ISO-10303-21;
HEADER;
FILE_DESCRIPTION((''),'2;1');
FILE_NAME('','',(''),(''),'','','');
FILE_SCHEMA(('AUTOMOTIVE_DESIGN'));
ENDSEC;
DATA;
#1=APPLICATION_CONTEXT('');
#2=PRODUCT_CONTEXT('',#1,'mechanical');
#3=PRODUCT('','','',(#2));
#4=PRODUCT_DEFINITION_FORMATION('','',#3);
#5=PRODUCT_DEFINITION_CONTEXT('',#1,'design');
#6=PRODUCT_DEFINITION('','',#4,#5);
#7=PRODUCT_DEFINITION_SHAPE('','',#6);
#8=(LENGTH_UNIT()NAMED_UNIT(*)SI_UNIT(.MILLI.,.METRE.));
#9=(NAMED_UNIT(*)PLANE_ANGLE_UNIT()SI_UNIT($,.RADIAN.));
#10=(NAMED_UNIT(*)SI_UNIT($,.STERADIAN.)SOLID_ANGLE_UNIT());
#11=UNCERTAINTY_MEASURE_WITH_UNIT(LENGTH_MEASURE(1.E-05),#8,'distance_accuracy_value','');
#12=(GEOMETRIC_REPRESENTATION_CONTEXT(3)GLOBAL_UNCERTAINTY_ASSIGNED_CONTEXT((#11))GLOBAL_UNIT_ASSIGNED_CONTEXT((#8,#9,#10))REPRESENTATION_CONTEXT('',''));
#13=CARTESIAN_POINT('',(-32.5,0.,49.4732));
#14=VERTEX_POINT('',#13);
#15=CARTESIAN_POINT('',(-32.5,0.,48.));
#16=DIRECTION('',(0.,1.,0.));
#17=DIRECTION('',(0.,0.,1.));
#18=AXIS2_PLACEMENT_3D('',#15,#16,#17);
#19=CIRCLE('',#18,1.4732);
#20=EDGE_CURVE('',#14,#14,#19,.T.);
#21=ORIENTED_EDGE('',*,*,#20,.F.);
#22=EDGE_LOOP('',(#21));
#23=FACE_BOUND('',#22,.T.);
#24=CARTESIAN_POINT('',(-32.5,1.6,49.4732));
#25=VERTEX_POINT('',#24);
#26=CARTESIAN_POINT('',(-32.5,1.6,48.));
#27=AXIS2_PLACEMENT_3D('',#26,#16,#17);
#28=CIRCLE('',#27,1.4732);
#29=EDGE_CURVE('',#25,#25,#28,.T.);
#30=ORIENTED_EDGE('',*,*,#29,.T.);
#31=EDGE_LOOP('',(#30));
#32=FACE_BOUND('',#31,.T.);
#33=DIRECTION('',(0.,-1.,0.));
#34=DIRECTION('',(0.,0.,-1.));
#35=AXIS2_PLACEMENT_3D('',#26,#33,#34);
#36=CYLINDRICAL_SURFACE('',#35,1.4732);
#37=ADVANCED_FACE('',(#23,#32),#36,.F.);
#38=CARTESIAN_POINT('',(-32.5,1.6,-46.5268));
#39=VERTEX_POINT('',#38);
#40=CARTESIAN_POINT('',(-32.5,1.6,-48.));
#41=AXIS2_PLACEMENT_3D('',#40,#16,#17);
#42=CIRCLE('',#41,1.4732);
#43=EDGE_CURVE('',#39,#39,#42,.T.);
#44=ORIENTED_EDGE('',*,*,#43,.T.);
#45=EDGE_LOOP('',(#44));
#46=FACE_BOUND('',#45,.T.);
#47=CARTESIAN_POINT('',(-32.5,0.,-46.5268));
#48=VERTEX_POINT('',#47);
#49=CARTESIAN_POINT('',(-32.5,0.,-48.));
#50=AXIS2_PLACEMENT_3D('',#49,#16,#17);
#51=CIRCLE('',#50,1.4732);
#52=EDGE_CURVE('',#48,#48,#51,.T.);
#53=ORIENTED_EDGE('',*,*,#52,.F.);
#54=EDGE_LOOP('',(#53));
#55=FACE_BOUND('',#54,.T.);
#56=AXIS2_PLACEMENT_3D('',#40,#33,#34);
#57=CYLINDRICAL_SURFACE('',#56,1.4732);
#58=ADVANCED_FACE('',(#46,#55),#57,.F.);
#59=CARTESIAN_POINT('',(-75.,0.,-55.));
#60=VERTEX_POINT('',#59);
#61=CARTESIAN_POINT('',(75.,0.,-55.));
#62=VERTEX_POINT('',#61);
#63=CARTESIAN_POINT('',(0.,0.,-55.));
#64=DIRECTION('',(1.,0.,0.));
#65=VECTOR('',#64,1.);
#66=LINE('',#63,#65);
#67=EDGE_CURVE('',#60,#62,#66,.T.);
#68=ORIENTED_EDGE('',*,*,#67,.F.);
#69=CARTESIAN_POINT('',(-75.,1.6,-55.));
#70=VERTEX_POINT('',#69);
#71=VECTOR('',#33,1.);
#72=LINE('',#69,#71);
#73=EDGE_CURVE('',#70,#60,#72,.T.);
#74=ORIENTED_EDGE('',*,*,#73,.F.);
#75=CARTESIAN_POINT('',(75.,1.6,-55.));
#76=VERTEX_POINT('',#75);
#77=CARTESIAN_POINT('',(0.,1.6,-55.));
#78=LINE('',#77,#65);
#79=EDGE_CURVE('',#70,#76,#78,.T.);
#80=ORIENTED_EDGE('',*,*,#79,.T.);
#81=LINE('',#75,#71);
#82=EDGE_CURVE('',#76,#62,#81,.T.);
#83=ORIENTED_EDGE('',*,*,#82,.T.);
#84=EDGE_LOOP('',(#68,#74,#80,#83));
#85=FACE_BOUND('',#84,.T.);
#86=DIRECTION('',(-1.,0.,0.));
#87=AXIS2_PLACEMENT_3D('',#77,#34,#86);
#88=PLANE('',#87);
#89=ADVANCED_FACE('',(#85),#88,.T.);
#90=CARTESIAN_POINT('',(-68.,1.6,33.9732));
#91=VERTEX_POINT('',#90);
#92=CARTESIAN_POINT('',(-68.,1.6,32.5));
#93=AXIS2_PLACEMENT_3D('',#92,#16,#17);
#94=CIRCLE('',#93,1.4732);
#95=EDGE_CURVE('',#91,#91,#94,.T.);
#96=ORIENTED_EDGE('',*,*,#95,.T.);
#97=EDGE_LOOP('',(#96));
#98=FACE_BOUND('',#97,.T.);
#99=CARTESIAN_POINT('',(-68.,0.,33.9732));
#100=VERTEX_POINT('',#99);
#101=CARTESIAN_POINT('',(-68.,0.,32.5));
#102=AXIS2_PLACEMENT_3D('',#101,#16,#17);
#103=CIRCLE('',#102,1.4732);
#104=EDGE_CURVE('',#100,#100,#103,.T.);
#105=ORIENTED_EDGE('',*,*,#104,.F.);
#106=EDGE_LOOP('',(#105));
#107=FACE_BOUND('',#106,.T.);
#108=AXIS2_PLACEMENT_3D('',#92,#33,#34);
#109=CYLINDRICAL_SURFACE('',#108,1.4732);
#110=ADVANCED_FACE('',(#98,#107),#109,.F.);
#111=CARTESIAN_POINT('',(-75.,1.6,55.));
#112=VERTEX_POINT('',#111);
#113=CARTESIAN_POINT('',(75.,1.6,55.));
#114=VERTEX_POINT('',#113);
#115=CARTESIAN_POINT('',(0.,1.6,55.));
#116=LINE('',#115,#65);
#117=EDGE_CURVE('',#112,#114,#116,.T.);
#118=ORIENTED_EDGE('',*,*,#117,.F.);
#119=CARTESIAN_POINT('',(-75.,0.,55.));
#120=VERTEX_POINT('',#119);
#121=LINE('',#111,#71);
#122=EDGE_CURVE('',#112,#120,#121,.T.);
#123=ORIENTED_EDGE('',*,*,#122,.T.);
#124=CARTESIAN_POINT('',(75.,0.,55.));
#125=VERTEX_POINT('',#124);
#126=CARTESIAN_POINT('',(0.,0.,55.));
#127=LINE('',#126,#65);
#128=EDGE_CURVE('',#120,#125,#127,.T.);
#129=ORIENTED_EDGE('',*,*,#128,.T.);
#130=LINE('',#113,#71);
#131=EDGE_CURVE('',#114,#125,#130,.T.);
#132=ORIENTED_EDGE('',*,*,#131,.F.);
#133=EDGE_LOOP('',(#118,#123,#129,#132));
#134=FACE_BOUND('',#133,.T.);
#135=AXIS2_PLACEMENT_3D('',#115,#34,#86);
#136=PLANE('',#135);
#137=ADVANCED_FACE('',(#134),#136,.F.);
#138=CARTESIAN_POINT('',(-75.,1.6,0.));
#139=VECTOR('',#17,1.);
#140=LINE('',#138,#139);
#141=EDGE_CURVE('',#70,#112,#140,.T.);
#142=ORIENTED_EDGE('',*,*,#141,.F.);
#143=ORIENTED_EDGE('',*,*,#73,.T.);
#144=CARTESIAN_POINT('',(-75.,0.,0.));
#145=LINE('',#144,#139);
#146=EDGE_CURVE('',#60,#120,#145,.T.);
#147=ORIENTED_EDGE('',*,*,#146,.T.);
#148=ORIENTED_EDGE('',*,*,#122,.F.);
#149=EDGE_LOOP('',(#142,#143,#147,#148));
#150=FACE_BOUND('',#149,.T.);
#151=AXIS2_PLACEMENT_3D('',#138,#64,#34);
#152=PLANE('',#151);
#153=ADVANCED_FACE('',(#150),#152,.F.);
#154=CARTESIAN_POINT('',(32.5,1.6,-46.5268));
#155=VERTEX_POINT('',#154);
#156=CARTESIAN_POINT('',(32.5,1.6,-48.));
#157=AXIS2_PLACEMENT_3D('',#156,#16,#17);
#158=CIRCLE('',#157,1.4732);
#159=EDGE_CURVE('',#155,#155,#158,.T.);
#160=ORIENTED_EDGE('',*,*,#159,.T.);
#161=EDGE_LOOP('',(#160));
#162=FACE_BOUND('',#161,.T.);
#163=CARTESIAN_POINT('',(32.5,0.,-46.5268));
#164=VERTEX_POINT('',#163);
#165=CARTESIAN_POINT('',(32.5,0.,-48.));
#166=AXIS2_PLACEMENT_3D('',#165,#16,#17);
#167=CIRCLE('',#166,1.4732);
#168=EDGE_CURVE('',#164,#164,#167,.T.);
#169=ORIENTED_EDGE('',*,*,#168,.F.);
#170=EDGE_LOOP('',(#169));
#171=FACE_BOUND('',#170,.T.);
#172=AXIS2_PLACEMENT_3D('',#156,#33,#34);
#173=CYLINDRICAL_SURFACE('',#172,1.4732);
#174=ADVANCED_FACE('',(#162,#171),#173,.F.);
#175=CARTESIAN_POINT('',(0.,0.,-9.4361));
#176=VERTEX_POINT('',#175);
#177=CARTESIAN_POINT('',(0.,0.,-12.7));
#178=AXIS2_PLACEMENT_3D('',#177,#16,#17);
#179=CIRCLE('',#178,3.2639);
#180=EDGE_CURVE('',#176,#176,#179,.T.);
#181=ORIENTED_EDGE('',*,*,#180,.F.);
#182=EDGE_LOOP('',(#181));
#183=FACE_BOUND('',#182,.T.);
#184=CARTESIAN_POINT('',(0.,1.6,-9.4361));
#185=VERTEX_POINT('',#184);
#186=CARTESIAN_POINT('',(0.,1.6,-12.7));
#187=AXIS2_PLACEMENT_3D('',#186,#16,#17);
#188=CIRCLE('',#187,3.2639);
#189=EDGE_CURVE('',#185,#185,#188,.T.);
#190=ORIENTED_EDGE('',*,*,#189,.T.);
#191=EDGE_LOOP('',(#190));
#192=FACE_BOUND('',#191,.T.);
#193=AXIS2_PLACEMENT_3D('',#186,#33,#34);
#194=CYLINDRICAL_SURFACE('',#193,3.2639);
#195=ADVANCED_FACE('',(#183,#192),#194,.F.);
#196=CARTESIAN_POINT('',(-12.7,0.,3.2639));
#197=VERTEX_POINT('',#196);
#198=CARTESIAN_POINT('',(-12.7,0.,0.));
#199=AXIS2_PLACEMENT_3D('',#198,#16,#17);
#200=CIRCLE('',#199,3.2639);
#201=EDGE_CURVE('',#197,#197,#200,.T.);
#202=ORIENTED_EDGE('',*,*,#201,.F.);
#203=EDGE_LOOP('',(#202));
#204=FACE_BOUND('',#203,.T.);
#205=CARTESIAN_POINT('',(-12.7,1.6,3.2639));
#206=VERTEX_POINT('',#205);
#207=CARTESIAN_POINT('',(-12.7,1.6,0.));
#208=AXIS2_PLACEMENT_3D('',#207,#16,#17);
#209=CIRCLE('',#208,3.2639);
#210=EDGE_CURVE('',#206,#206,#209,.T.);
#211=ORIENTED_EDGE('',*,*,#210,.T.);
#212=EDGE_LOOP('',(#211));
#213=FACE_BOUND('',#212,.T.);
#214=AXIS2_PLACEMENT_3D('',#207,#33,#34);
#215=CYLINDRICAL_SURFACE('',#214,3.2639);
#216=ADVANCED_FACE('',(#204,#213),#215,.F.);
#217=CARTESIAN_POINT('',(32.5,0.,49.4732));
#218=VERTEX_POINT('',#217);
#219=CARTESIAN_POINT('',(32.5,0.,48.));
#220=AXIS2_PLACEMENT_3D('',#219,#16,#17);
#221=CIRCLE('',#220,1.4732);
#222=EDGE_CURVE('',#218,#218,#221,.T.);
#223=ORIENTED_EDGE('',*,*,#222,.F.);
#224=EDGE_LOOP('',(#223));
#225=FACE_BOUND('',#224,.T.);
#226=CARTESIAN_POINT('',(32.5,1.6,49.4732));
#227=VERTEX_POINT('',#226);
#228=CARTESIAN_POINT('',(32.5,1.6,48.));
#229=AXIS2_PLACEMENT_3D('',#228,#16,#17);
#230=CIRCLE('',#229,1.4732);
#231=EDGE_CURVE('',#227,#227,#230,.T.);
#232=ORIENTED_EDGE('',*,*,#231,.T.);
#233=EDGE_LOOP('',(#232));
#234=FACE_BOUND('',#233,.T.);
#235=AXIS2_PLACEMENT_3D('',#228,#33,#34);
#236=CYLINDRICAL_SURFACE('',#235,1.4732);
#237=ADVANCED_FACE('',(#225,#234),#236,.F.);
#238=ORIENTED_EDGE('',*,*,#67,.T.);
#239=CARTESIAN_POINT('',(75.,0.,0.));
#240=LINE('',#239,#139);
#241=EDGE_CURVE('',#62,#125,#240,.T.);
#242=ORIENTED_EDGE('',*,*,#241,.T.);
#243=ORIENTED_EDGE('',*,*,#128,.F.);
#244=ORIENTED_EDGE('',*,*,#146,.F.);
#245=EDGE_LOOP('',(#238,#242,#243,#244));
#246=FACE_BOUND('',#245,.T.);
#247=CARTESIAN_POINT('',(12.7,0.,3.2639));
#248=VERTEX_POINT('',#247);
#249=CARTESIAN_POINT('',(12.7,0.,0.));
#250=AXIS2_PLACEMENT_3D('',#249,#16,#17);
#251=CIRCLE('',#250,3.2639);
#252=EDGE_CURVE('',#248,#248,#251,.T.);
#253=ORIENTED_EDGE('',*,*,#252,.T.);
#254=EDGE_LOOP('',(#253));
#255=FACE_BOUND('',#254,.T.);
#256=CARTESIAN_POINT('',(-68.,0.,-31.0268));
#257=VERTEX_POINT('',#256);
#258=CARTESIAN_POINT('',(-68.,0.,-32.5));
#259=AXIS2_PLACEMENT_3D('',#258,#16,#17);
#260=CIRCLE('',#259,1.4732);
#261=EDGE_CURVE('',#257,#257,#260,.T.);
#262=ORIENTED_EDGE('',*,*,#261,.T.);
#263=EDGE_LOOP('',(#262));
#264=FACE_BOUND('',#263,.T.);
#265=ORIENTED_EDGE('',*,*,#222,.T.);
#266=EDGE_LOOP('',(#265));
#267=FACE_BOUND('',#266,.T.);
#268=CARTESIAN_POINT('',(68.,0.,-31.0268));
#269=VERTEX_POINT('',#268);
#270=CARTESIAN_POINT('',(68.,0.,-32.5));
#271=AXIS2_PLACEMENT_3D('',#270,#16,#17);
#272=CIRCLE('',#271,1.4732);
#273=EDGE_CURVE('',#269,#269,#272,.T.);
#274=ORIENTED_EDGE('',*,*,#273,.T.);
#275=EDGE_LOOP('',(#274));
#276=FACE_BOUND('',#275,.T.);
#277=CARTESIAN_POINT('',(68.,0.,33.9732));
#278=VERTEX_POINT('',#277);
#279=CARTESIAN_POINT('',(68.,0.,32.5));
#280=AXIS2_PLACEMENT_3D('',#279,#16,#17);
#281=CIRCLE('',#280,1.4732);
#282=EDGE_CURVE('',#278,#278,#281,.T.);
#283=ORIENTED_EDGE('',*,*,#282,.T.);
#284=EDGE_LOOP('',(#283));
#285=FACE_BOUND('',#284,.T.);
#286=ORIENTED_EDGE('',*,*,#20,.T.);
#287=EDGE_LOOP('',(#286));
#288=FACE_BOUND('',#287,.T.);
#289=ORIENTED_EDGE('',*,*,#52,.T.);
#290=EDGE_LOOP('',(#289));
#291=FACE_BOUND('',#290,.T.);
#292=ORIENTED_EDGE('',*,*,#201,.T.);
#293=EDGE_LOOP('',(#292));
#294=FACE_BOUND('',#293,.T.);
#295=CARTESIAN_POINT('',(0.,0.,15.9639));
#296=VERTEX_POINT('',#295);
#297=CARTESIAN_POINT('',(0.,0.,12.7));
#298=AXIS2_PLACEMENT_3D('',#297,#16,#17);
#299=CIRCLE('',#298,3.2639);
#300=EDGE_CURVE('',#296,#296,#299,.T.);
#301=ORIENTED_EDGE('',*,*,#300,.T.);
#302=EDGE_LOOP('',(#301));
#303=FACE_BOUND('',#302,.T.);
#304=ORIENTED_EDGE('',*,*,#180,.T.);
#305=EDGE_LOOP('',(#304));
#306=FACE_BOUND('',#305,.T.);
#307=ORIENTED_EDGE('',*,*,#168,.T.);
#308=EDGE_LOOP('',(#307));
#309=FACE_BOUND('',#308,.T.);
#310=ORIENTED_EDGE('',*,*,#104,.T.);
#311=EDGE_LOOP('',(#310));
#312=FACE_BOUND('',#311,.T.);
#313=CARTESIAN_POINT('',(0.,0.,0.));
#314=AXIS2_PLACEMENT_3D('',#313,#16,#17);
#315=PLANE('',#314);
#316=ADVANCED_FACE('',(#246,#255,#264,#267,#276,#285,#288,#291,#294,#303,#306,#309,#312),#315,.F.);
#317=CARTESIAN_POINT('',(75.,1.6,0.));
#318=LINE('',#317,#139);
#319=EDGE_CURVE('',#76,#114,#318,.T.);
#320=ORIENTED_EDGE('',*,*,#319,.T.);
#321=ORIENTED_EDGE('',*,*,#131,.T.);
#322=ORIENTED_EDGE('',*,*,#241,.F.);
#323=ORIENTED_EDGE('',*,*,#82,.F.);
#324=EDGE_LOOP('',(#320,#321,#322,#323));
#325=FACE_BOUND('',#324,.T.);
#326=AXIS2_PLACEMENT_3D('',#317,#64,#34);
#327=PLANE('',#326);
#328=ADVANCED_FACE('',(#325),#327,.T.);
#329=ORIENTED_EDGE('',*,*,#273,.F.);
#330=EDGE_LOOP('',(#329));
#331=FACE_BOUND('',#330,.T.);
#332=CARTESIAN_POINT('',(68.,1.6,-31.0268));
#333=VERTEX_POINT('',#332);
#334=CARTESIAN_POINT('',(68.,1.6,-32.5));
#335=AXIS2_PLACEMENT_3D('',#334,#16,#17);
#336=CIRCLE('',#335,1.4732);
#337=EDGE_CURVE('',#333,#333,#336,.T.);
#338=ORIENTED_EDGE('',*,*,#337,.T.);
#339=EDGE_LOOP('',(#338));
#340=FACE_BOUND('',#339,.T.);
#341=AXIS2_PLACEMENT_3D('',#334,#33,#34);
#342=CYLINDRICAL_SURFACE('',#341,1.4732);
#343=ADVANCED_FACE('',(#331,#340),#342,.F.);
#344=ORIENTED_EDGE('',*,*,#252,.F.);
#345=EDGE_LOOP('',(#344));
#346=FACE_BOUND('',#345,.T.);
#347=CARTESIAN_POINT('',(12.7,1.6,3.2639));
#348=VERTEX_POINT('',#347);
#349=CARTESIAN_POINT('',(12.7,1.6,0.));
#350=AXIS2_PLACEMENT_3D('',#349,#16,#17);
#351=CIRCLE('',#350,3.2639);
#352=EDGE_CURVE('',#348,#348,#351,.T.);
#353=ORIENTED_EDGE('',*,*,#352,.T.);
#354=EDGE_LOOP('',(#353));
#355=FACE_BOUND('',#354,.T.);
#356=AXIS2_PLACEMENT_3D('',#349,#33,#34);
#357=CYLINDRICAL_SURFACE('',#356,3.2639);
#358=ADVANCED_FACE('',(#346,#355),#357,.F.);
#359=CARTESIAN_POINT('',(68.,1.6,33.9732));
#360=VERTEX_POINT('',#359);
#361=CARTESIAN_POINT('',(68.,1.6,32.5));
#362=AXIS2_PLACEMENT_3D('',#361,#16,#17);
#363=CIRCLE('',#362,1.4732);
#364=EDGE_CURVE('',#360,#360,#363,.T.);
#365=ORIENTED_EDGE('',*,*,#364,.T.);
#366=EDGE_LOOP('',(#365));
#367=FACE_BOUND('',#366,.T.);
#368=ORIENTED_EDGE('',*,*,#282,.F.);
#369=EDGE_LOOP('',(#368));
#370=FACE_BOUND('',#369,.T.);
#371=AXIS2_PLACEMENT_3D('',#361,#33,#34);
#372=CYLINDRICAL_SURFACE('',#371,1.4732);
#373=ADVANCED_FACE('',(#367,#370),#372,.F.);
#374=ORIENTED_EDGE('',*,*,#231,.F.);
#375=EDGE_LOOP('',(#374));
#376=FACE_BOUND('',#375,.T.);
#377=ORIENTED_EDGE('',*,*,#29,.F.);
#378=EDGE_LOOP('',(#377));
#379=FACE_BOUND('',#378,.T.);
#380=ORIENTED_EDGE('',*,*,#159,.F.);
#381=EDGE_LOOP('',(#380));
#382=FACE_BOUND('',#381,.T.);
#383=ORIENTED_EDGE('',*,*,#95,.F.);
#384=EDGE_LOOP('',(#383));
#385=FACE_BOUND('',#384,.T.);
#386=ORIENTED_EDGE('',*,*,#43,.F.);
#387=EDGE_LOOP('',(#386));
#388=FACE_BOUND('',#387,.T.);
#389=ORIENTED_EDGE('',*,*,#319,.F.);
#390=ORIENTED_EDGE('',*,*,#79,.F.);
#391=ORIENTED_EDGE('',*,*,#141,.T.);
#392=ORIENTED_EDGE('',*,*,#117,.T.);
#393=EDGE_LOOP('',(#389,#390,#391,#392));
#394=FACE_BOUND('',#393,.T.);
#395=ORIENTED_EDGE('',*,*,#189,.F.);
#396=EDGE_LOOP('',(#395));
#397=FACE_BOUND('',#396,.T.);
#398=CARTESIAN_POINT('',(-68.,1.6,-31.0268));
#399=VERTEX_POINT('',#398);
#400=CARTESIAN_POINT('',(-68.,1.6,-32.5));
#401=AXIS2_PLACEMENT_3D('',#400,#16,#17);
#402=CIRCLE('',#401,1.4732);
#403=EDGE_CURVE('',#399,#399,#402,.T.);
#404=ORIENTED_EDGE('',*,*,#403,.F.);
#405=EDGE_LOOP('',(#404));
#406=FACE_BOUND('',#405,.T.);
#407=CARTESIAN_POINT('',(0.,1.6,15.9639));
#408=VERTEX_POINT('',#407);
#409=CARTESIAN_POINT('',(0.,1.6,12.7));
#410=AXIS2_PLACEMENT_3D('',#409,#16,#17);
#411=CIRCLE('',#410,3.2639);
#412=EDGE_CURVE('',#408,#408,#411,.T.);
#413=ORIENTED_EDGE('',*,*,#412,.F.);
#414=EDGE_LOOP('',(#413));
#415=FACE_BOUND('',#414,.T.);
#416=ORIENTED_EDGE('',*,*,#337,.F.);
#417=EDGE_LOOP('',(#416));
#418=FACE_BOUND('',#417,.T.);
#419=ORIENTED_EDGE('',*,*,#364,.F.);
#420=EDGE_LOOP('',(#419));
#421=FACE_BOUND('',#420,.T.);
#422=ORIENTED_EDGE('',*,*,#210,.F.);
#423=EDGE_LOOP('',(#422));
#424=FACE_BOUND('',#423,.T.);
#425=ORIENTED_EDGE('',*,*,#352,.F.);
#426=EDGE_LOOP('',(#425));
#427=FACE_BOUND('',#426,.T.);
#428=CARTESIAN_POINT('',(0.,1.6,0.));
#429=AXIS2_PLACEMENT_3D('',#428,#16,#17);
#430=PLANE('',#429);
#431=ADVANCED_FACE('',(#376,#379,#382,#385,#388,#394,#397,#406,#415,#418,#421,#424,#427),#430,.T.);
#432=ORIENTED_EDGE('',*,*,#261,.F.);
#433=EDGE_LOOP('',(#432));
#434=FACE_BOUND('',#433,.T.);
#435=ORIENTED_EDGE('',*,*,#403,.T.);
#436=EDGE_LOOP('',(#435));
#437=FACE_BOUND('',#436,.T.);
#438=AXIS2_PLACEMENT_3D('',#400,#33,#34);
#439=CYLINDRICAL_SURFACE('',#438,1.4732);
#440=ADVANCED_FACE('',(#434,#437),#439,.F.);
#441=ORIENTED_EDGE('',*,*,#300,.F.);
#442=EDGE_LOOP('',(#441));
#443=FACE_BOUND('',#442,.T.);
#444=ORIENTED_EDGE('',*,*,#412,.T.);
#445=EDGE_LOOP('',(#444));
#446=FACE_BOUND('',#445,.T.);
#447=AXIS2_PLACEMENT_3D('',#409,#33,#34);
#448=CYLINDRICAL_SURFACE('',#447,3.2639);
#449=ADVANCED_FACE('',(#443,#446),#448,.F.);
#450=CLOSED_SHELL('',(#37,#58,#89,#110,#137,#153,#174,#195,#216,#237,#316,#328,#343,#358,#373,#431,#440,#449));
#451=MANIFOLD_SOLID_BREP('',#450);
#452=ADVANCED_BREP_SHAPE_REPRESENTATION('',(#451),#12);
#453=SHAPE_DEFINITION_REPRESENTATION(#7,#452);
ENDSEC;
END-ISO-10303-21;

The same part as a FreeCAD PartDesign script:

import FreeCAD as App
import Part
import Sketcher

doc = App.newDocument("Part")
params = doc.addObject("Spreadsheet::Sheet", "Params")
for row, (alias, value) in enumerate([
    ("sketch1_width", "150 mm"),
    ("sketch1_height", "110 mm"),
    ("pad1_length", "1.6 mm"),
], start=1):
    params.set(f"A{row}", alias)
    params.set(f"B{row}", "=" + value)
    params.setAlias(f"B{row}", alias)

body = doc.addObject("PartDesign::Body", "Body")

# Sketch on XZ plane
sketch1 = body.newObject("Sketcher::SketchObject", "Sketch")
sketch1.AttachmentSupport = (doc.getObject("XZ_Plane"), [""])
sketch1.MapMode = "FlatFace"
sketch1.addGeometry(Part.LineSegment(App.Vector(-75, -55, 0), App.Vector(-75, 55, 0)), False)
sketch1.addGeometry(Part.LineSegment(App.Vector(-75, 55, 0), App.Vector(75, 55, 0)), False)
sketch1.addGeometry(Part.LineSegment(App.Vector(75, 55, 0), App.Vector(75, -55, 0)), False)
sketch1.addGeometry(Part.LineSegment(App.Vector(75, -55, 0), App.Vector(-75, -55, 0)), False)
sketch1.addGeometry(Part.Circle(App.Vector(-68, 32.5, 0), App.Vector(0, 0, 1), 1.4732), False)
sketch1.addGeometry(Part.Circle(App.Vector(-32.5, 48, 0), App.Vector(0, 0, 1), 1.4732), False)
sketch1.addGeometry(Part.Circle(App.Vector(0, 12.7, 0), App.Vector(0, 0, 1), 3.2639), False)
sketch1.addGeometry(Part.Circle(App.Vector(-12.7, 0, 0), App.Vector(0, 0, 1), 3.2639), False)
sketch1.addGeometry(Part.Circle(App.Vector(32.5, 48, 0), App.Vector(0, 0, 1), 1.4732), False)
sketch1.addGeometry(Part.Circle(App.Vector(68, 32.5, 0), App.Vector(0, 0, 1), 1.4732), False)
sketch1.addGeometry(Part.Circle(App.Vector(12.7, 0, 0), App.Vector(0, 0, 1), 3.2639), False)
sketch1.addGeometry(Part.Circle(App.Vector(0, -12.7, 0), App.Vector(0, 0, 1), 3.2639), False)
sketch1.addGeometry(Part.Circle(App.Vector(-68, -32.5, 0), App.Vector(0, 0, 1), 1.4732), False)
sketch1.addGeometry(Part.Circle(App.Vector(-32.5, -48, 0), App.Vector(0, 0, 1), 1.4732), False)
sketch1.addGeometry(Part.Circle(App.Vector(32.5, -48, 0), App.Vector(0, 0, 1), 1.4732), False)
sketch1.addGeometry(Part.Circle(App.Vector(68, -32.5, 0), App.Vector(0, 0, 1), 1.4732), False)
sketch1.addConstraint(Sketcher.Constraint("Coincident", 0, 2, 1, 1))
sketch1.addConstraint(Sketcher.Constraint("Coincident", 1, 2, 2, 1))
sketch1.addConstraint(Sketcher.Constraint("Coincident", 2, 2, 3, 1))
sketch1.addConstraint(Sketcher.Constraint("Coincident", 3, 2, 0, 1))
sketch1.addConstraint(Sketcher.Constraint("Vertical", 0))
sketch1.addConstraint(Sketcher.Constraint("Horizontal", 1))
sketch1.addConstraint(Sketcher.Constraint("Vertical", 2))
sketch1.addConstraint(Sketcher.Constraint("Horizontal", 3))
sketch1.addConstraint(Sketcher.Constraint("Equal", 4, 5))
sketch1.addConstraint(Sketcher.Constraint("Equal", 6, 7))
sketch1.addConstraint(Sketcher.Constraint("Equal", 5, 8))
sketch1.addConstraint(Sketcher.Constraint("Equal", 8, 9))
sketch1.addConstraint(Sketcher.Constraint("Equal", 7, 10))
sketch1.addConstraint(Sketcher.Constraint("Equal", 10, 11))
sketch1.addConstraint(Sketcher.Constraint("Equal", 9, 12))
sketch1.addConstraint(Sketcher.Constraint("Equal", 12, 13))
sketch1.addConstraint(Sketcher.Constraint("Equal", 13, 14))
sketch1.addConstraint(Sketcher.Constraint("Equal", 14, 15))
sketch1.addConstraint(Sketcher.Constraint("Symmetric", 7, 3, 10, 3, -1, 1))
sketch1.addConstraint(Sketcher.Constraint("Symmetric", 6, 3, 11, 3, -1, 1))
sketch1.addConstraint(Sketcher.Constraint("Symmetric", 9, 3, 12, 3, -1, 1))
sketch1.addConstraint(Sketcher.Constraint("Symmetric", 8, 3, 13, 3, -1, 1))
sketch1.addConstraint(Sketcher.Constraint("Symmetric", 5, 3, 14, 3, -1, 1))
sketch1.addConstraint(Sketcher.Constraint("Symmetric", 4, 3, 15, 3, -1, 1))
sketch1.addConstraint(Sketcher.Constraint("Symmetric", 0, 2, 2, 2, -1, 1))
sketch1.addConstraint(Sketcher.Constraint("Symmetric", 5, 3, 8, 3, -2))
sketch1.addConstraint(Sketcher.Constraint("Symmetric", 4, 3, 9, 3, -2))
sketch1.addConstraint(Sketcher.Constraint("PointOnObject", 6, 3, -2))
sketch1.addConstraint(Sketcher.Constraint("PointOnObject", 7, 3, -1))
sketch1.addConstraint(Sketcher.Constraint("DistanceX", 1, 1, 1, 2, 150.0))
sketch1.addConstraint(Sketcher.Constraint("DistanceY", 0, 1, 0, 2, 110.0))
sketch1.addConstraint(Sketcher.Constraint("DistanceX", 4, 3, -1, 1, 68.0))
sketch1.addConstraint(Sketcher.Constraint("DistanceY", -1, 1, 5, 3, 48.0))
sketch1.addConstraint(Sketcher.Constraint("DistanceX", 5, 3, 8, 3, 65.0))
sketch1.addConstraint(Sketcher.Constraint("DistanceY", 12, 3, 4, 3, 65.0))
sketch1.addConstraint(Sketcher.Constraint("Diameter", 4, 2.9464))
sketch1.addConstraint(Sketcher.Constraint("Diameter", 6, 6.5278))
sketch1.addConstraint(Sketcher.Constraint("DistanceY", -1, 1, 6, 3, 12.7))
sketch1.addConstraint(Sketcher.Constraint("DistanceX", 7, 3, -1, 1, 12.7))
sketch1.setExpression("Constraints[29]", "Params.sketch1_width")
sketch1.setExpression("Constraints[30]", "Params.sketch1_height")
pad1 = body.newObject("PartDesign::Pad", "Pad")
pad1.Profile = sketch1
pad1.setExpression("Length", "Params.pad1_length")
pad1.Reversed = True

doc.recompute()
